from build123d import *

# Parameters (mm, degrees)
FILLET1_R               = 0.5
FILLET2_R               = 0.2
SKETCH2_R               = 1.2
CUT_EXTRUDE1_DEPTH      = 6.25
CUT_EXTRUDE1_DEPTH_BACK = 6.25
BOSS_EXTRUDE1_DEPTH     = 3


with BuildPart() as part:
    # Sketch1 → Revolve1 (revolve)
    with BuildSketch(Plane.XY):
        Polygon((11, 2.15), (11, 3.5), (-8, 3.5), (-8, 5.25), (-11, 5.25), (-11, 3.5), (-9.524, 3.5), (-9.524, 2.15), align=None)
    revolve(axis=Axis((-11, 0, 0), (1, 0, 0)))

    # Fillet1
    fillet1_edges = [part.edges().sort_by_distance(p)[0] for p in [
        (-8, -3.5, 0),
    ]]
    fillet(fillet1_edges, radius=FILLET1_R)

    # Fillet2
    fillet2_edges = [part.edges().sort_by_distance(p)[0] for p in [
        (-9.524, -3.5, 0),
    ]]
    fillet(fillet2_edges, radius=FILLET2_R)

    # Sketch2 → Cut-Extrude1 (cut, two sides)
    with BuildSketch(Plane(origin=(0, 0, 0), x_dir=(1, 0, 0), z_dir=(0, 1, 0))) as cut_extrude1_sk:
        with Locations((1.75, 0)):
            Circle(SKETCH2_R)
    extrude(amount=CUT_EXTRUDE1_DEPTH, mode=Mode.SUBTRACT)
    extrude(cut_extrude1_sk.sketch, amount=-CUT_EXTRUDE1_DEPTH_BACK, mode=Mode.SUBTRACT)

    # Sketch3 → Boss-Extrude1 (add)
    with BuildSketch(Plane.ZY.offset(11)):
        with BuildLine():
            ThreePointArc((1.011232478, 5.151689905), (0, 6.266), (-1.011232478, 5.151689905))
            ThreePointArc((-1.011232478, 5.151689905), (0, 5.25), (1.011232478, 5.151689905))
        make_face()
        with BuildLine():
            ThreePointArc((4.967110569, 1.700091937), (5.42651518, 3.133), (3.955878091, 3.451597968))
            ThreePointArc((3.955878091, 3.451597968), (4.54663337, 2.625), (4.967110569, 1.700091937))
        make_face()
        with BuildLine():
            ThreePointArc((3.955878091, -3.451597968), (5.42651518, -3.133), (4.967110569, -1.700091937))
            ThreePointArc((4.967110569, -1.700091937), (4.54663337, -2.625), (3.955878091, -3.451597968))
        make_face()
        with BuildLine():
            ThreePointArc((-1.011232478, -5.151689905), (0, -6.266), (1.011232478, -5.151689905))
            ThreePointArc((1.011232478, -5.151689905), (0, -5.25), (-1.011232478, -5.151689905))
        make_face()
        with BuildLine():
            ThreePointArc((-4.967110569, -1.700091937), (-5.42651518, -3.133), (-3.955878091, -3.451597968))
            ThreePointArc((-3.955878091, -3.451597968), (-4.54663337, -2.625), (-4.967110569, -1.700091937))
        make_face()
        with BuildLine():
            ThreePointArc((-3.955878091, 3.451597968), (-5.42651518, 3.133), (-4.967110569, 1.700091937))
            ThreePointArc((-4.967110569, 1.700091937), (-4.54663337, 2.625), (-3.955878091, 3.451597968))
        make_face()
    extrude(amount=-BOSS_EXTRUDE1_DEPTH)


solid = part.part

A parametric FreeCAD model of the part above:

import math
import FreeCAD as App
import Part
import Sketcher

V = App.Vector
Q = App.Units.Quantity


def edges_at(feature, points):
    """Names of the edges that pass closest to the given points."""
    edges = feature.Shape.Edges
    near = lambda p: min(range(len(edges)), key=lambda i: edges[i].distToShape(Part.Vertex(*p))[0])
    return sorted({f"Edge{near(p) + 1}" for p in points})


def add_polygon(sketch, points):
    """Adds a closed chain of lines whose ends are joined by coincident constraints."""
    first, n = sketch.GeometryCount, len(points)
    for a, b in zip(points, points[1:] + points[:1]):
        sketch.addGeometry(Part.LineSegment(App.Vector(*a, 0), App.Vector(*b, 0)), False)
    for i in range(n):
        sketch.addConstraint(Sketcher.Constraint("Coincident", first + i, 2, first + (i + 1) % n, 1))

doc = App.newDocument("Part")
body = doc.addObject("PartDesign::Body", "Body")

# Sketch on XY plane
sketch1 = body.newObject("Sketcher::SketchObject", "Sketch")
sketch1.AttachmentSupport = (doc.getObject("XY_Plane"), [""])
sketch1.MapMode = "FlatFace"
add_polygon(sketch1, [(11, 2.1), (11, 3.5), (-8, 3.5), (-8, 5.2), (-11, 5.2), (-11, 3.5), (-9.5, 3.5), (-9.5, 2.1)])  # lines 0-7
sketch1.addConstraint([
    Sketcher.Constraint("Vertical", 0),
    Sketcher.Constraint("Horizontal", 1),
    Sketcher.Constraint("Vertical", 2),
    Sketcher.Constraint("Horizontal", 3),
    Sketcher.Constraint("Vertical", 4),
    Sketcher.Constraint("Horizontal", 5),
    Sketcher.Constraint("Vertical", 6),
    Sketcher.Constraint("Horizontal", 7),
    Sketcher.Constraint("Symmetric", 0, 2, 4, 2, -2),
    Sketcher.Constraint("DistanceX", 1, 2, 1, 1, Q("19 mm")),
    Sketcher.Constraint("DistanceX", 3, 2, 3, 1, Q("3 mm")),
    Sketcher.Constraint("DistanceY", 0, 1, 0, 2, Q("1.35 mm")),
    Sketcher.Constraint("DistanceY", 2, 1, 2, 2, Q("1.75 mm")),
    Sketcher.Constraint("DistanceY", -1, 1, 0, 2, Q("3.5 mm")),
    Sketcher.Constraint("DistanceX", 5, 1, 5, 2, Q("1.476 mm")),
])
revolution = body.newObject("PartDesign::Revolution", "Revolution")
revolution.Profile = sketch1
revolution.ReferenceAxis = (sketch1, ["H_Axis"])
revolution.Angle = 360
doc.recompute()

fillet = body.newObject("PartDesign::Fillet", "Fillet")
fillet.Base = (revolution, edges_at(revolution, [(-8, -3.5, 0)]))
fillet.Radius = 0.5
doc.recompute()

fillet2 = body.newObject("PartDesign::Fillet", "Fillet001")
fillet2.Base = (fillet, edges_at(fillet, [(-9.524, -3.5, 0)]))
fillet2.Radius = 0.2

# Sketch on XZ plane
sketch2 = body.newObject("Sketcher::SketchObject", "Sketch001")
sketch2.AttachmentSupport = (doc.getObject("XZ_Plane"), [""])
sketch2.MapMode = "FlatFace"
sketch2.addGeometry(Part.Circle(V(1.8, 0, 0), V(0, 0, 1), 1.2), False)
sketch2.addConstraint([
    Sketcher.Constraint("PointOnObject", 0, 3, -1),
    Sketcher.Constraint("Diameter", 0, Q("2.4 mm")),
    Sketcher.Constraint("DistanceX", -1, 1, 0, 3, Q("1.75 mm")),
])
pocket1 = body.newObject("PartDesign::Pocket", "Pocket")
pocket1.Profile = sketch2
pocket1.Type = "ThroughAll"
pocket1.Midplane = True

# Sketch on YZ plane
sketch3 = body.newObject("Sketcher::SketchObject", "Sketch002")
sketch3.AttachmentSupport = (doc.getObject("YZ_Plane"), [""])
sketch3.MapMode = "FlatFace"
sketch3.AttachmentOffset = App.Placement(V(0, 0, -11), App.Rotation())
sketch3.addGeometry([
    Part.ArcOfCircle(Part.Circle(V(5.2, 0, 0), V(0, 0, 1), 1), math.radians(-96), math.radians(96)),  # 0
    Part.ArcOfCircle(Part.Circle(V(0, 0, 0), V(0, 0, 1), 5.3), math.radians(-11), math.radians(11)),  # 1
    Part.ArcOfCircle(Part.Circle(V(2.6, 4.5, 0), V(0, 0, 1), 1), math.radians(-36), math.radians(156)),  # 2
    Part.ArcOfCircle(Part.Circle(V(0, 0, 0), V(0, 0, 1), 5.2), math.radians(49), math.radians(71)),  # 3
    Part.ArcOfCircle(Part.Circle(V(-2.6, 4.5, 0), V(0, 0, 1), 1), math.radians(24), math.radians(216)),  # 4
    Part.ArcOfCircle(Part.Circle(V(0, 0, 0), V(0, 0, 1), 5.2), math.radians(109), math.radians(131)),  # 5
    Part.ArcOfCircle(Part.Circle(V(-5.2, 0, 0), V(0, 0, 1), 1), math.radians(84), math.radians(276)),  # 6
    Part.ArcOfCircle(Part.Circle(V(0, 0, 0), V(0, 0, 1), 5.3), math.radians(169), math.radians(191)),  # 7
    Part.ArcOfCircle(Part.Circle(V(-2.6, -4.5, 0), V(0, 0, 1), 1), math.radians(144), math.radians(336)),  # 8
    Part.ArcOfCircle(Part.Circle(V(0, 0, 0), V(0, 0, 1), 5.2), math.radians(-131), math.radians(-109)),  # 9
    Part.ArcOfCircle(Part.Circle(V(2.6, -4.5, 0), V(0, 0, 1), 1), math.radians(-156), math.radians(36)),  # 10
    Part.ArcOfCircle(Part.Circle(V(0, 0, 0), V(0, 0, 1), 5.2), math.radians(-71), math.radians(-49)),  # 11
], False)
sketch3.addConstraint([
    Sketcher.Constraint("Coincident", 0, 1, 1, 1),
    Sketcher.Constraint("Coincident", 1, 2, 0, 2),
    Sketcher.Constraint("Coincident", 2, 1, 3, 1),
    Sketcher.Constraint("Coincident", 3, 2, 2, 2),
    Sketcher.Constraint("Coincident", 4, 1, 5, 1),
    Sketcher.Constraint("Coincident", 5, 2, 4, 2),
    Sketcher.Constraint("Coincident", 6, 1, 7, 1),
    Sketcher.Constraint("Coincident", 7, 2, 6, 2),
    Sketcher.Constraint("Coincident", 8, 1, 9, 1),
    Sketcher.Constraint("Coincident", 9, 2, 8, 2),
    Sketcher.Constraint("Coincident", 10, 1, 11, 1),
    Sketcher.Constraint("Coincident", 11, 2, 10, 2),
    Sketcher.Constraint("Coincident", 1, 3, -1, 1),
    Sketcher.Constraint("Coincident", 3, 3, -1, 1),
    Sketcher.Constraint("Coincident", 5, 3, -1, 1),
    Sketcher.Constraint("Coincident", 7, 3, -1, 1),
    Sketcher.Constraint("Coincident", 9, 3, -1, 1),
    Sketcher.Constraint("Coincident", 11, 3, -1, 1),
    Sketcher.Constraint("Equal", 0, 2),
    Sketcher.Constraint("Equal", 1, 3),
    Sketcher.Constraint("Equal", 2, 4),
    Sketcher.Constraint("Equal", 3, 5),
    Sketcher.Constraint("Equal", 4, 6),
    Sketcher.Constraint("Equal", 5, 7),
    Sketcher.Constraint("Equal", 6, 8),
    Sketcher.Constraint("Equal", 7, 9),
    Sketcher.Constraint("Equal", 8, 10),
    Sketcher.Constraint("Equal", 9, 11),
    Sketcher.Constraint("Symmetric", 0, 3, 6, 3, -1, 1),
    Sketcher.Constraint("Symmetric", 2, 3, 8, 3, -1, 1),
    Sketcher.Constraint("Symmetric", 4, 3, 10, 3, -1, 1),
    Sketcher.Constraint("Symmetric", 2, 3, 4, 3, -2),
    Sketcher.Constraint("PointOnObject", 0, 3, -1),
    Sketcher.Constraint("Radius", 1, Q("5.25 mm")),
    Sketcher.Constraint("Radius", 0, Q("1.016 mm")),
    Sketcher.Constraint("DistanceX", -1, 1, 0, 3, Q("5.25 mm")),
    Sketcher.Constraint("DistanceX", 4, 3, 2, 3, Q("5.25 mm")),
    Sketcher.Constraint("DistanceY", 10, 3, 0, 1, Q("3.535401 mm")),
])
pad1 = body.newObject("PartDesign::Pad", "Pad")
pad1.Profile = sketch3
pad1.Length = 3

doc.recompute()
